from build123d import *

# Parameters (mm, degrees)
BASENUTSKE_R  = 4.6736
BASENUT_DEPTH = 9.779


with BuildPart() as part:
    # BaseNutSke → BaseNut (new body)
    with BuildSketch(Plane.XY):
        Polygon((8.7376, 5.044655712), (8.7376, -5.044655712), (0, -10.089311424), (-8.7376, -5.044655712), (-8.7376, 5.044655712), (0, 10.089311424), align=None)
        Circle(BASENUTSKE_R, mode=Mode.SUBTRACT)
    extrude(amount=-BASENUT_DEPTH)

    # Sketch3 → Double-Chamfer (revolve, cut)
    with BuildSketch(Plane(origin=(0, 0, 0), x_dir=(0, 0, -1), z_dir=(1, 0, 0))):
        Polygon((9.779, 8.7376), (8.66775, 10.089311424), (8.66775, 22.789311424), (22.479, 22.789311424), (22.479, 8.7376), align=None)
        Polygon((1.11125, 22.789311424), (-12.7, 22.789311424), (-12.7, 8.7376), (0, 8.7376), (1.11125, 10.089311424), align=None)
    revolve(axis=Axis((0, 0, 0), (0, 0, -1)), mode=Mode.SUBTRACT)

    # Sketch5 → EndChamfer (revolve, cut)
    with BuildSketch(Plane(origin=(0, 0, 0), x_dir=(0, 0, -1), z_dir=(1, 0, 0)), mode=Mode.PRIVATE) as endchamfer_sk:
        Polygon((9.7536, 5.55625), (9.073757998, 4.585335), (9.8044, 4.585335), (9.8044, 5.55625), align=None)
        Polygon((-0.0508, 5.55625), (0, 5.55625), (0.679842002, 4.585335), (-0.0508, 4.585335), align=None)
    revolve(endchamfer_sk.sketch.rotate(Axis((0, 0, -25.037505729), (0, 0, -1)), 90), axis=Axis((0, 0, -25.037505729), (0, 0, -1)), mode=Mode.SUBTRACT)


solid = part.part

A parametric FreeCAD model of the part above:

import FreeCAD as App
import Part
import Sketcher
Q = App.Units.Quantity


def add_polygon(sketch, points):
    """Adds a closed chain of lines whose ends are joined by coincident constraints."""
    first, n = sketch.GeometryCount, len(points)
    for a, b in zip(points, points[1:] + points[:1]):
        sketch.addGeometry(Part.LineSegment(App.Vector(*a, 0), App.Vector(*b, 0)), False)
    for i in range(n):
        sketch.addConstraint(Sketcher.Constraint("Coincident", first + i, 2, first + (i + 1) % n, 1))

doc = App.newDocument("Part")
body = doc.addObject("PartDesign::Body", "Body")

sketch1 = body.newObject("Sketcher::SketchObject", "Sketch")
sketch1.AttachmentSupport = (doc.getObject("XY_Plane"), [""])
sketch1.MapMode = "FlatFace"
add_polygon(sketch1, [(8.7, -5), (8.7, 5), (0, 10.1), (-8.7, 5), (-8.7, -5), (0, -10.1)])
sketch1.addGeometry(Part.Circle(App.Vector(0, 0, 0), App.Vector(0, 0, 1), 4.7), False)
sketch1.addConstraint([
    Sketcher.Constraint("Vertical", 0),
    Sketcher.Constraint("Vertical", 3),
    Sketcher.Constraint("Coincident", 6, 3, -1, 1),
    Sketcher.Constraint("Symmetric", 0, 2, 3, 2, -1, 1),
    Sketcher.Constraint("Symmetric", 1, 2, 4, 2, -1, 1),
    Sketcher.Constraint("PointOnObject", 1, 2, -2),
    Sketcher.Constraint("Parallel", 2, 5),
    Sketcher.Constraint("Horizontal", 0, 2, 2, 2),
    Sketcher.Constraint("Diameter", 6, Q("0.368 in")),
    Sketcher.Constraint("Angle", 1, Q("150 deg")),
    Sketcher.Constraint("DistanceX", -1, 1, 0, 2, Q("0.344 in")),
    Sketcher.Constraint("DistanceY", 0, 1, 0, 2, Q("10.089311 mm")),
])
pad1 = body.newObject("PartDesign::Pad", "Pad")
pad1.Profile = sketch1
pad1.Length = Q("0.385 in")
pad1.Reversed = True

sketch2 = body.newObject("Sketcher::SketchObject", "Sketch001")
sketch2.AttachmentSupport = (doc.getObject("YZ_Plane"), [""])
sketch2.MapMode = "FlatFace"
add_polygon(sketch2, [(10.1, -8.7), (8.7, -9.8), (8.7, -22.5), (22.8, -22.5), (22.8, -8.7)])
add_polygon(sketch2, [(22.8, -1.1), (22.8, 12.7), (8.7, 12.7), (8.7, 0), (10.1, -1.1)])
sketch2.addConstraint([
    Sketcher.Constraint("Vertical", 1),
    Sketcher.Constraint("Horizontal", 2),
    Sketcher.Constraint("Vertical", 3),
    Sketcher.Constraint("Horizontal", 4),
    Sketcher.Constraint("Vertical", 5),
    Sketcher.Constraint("Horizontal", 6),
    Sketcher.Constraint("Vertical", 7),
    Sketcher.Constraint("Horizontal", 9),
    Sketcher.Constraint("PointOnObject", 7, 2, -1),
    Sketcher.Constraint("Vertical", 3, 2, 5, 2),
    Sketcher.Constraint("Vertical", 1, 2, 6, 2),
    Sketcher.Constraint("Vertical", 4, 2, 8, 2),
    Sketcher.Constraint("Equal", 9, 1),
    Sketcher.Constraint("Equal", 3, 5),
    Sketcher.Constraint("Equal", 1, 7),
    Sketcher.Constraint("DistanceX", 4, 2, 4, 1, Q("0.5 in")),
    Sketcher.Constraint("DistanceX", -1, 1, 0, 2, Q("0.344 in")),
    Sketcher.Constraint("DistanceY", 0, 2, -1, 1, Q("0.385 in")),
    Sketcher.Constraint("DistanceY", 4, 2, 8, 2, Q("0.2975 in")),
    Sketcher.Constraint("DistanceX", 2, 1, 2, 2, Q("14.051711 mm")),
])
groove = body.newObject("PartDesign::Groove", "Groove")
groove.Profile = sketch2
groove.ReferenceAxis = (sketch2, ["V_Axis"])
groove.Angle = 360

sketch3 = body.newObject("Sketcher::SketchObject", "Sketch002")
sketch3.AttachmentSupport = (doc.getObject("YZ_Plane"), [""])
sketch3.MapMode = "FlatFace"
add_polygon(sketch3, [(5.56, -9.75), (4.59, -9.07), (4.59, -9.8), (5.56, -9.8)])
add_polygon(sketch3, [(5.56, 0), (5.56, 0.05), (4.59, 0.05), (4.59, -0.68)])
sketch3.addConstraint([
    Sketcher.Constraint("Vertical", 1),
    Sketcher.Constraint("Horizontal", 2),
    Sketcher.Constraint("Vertical", 3),
    Sketcher.Constraint("Vertical", 4),
    Sketcher.Constraint("Horizontal", 5),
    Sketcher.Constraint("Vertical", 6),
    Sketcher.Constraint("PointOnObject", 7, 2, -1),
    Sketcher.Constraint("Vertical", 3, 2, 4, 2),
    Sketcher.Constraint("Vertical", 1, 2, 5, 2),
    Sketcher.Constraint("Equal", 3, 4),
    Sketcher.Constraint("Equal", 1, 6),
    Sketcher.Constraint("Angle", 0, Q("145 deg")),
    Sketcher.Constraint("DistanceY", 3, 1, 3, 2, Q("0.002 in")),
    Sketcher.Constraint("DistanceY", 1, 2, -1, 1, Q("0.386 in")),
    Sketcher.Constraint("DistanceX", -1, 1, 2, 2, Q("0.21875 in")),
    Sketcher.Constraint("Distance", 0, Q("1.185268 mm")),
])
groove2 = body.newObject("PartDesign::Groove", "Groove001")
groove2.Profile = sketch3
groove2.ReferenceAxis = (sketch3, ["V_Axis"])
groove2.Angle = 360

doc.recompute()
